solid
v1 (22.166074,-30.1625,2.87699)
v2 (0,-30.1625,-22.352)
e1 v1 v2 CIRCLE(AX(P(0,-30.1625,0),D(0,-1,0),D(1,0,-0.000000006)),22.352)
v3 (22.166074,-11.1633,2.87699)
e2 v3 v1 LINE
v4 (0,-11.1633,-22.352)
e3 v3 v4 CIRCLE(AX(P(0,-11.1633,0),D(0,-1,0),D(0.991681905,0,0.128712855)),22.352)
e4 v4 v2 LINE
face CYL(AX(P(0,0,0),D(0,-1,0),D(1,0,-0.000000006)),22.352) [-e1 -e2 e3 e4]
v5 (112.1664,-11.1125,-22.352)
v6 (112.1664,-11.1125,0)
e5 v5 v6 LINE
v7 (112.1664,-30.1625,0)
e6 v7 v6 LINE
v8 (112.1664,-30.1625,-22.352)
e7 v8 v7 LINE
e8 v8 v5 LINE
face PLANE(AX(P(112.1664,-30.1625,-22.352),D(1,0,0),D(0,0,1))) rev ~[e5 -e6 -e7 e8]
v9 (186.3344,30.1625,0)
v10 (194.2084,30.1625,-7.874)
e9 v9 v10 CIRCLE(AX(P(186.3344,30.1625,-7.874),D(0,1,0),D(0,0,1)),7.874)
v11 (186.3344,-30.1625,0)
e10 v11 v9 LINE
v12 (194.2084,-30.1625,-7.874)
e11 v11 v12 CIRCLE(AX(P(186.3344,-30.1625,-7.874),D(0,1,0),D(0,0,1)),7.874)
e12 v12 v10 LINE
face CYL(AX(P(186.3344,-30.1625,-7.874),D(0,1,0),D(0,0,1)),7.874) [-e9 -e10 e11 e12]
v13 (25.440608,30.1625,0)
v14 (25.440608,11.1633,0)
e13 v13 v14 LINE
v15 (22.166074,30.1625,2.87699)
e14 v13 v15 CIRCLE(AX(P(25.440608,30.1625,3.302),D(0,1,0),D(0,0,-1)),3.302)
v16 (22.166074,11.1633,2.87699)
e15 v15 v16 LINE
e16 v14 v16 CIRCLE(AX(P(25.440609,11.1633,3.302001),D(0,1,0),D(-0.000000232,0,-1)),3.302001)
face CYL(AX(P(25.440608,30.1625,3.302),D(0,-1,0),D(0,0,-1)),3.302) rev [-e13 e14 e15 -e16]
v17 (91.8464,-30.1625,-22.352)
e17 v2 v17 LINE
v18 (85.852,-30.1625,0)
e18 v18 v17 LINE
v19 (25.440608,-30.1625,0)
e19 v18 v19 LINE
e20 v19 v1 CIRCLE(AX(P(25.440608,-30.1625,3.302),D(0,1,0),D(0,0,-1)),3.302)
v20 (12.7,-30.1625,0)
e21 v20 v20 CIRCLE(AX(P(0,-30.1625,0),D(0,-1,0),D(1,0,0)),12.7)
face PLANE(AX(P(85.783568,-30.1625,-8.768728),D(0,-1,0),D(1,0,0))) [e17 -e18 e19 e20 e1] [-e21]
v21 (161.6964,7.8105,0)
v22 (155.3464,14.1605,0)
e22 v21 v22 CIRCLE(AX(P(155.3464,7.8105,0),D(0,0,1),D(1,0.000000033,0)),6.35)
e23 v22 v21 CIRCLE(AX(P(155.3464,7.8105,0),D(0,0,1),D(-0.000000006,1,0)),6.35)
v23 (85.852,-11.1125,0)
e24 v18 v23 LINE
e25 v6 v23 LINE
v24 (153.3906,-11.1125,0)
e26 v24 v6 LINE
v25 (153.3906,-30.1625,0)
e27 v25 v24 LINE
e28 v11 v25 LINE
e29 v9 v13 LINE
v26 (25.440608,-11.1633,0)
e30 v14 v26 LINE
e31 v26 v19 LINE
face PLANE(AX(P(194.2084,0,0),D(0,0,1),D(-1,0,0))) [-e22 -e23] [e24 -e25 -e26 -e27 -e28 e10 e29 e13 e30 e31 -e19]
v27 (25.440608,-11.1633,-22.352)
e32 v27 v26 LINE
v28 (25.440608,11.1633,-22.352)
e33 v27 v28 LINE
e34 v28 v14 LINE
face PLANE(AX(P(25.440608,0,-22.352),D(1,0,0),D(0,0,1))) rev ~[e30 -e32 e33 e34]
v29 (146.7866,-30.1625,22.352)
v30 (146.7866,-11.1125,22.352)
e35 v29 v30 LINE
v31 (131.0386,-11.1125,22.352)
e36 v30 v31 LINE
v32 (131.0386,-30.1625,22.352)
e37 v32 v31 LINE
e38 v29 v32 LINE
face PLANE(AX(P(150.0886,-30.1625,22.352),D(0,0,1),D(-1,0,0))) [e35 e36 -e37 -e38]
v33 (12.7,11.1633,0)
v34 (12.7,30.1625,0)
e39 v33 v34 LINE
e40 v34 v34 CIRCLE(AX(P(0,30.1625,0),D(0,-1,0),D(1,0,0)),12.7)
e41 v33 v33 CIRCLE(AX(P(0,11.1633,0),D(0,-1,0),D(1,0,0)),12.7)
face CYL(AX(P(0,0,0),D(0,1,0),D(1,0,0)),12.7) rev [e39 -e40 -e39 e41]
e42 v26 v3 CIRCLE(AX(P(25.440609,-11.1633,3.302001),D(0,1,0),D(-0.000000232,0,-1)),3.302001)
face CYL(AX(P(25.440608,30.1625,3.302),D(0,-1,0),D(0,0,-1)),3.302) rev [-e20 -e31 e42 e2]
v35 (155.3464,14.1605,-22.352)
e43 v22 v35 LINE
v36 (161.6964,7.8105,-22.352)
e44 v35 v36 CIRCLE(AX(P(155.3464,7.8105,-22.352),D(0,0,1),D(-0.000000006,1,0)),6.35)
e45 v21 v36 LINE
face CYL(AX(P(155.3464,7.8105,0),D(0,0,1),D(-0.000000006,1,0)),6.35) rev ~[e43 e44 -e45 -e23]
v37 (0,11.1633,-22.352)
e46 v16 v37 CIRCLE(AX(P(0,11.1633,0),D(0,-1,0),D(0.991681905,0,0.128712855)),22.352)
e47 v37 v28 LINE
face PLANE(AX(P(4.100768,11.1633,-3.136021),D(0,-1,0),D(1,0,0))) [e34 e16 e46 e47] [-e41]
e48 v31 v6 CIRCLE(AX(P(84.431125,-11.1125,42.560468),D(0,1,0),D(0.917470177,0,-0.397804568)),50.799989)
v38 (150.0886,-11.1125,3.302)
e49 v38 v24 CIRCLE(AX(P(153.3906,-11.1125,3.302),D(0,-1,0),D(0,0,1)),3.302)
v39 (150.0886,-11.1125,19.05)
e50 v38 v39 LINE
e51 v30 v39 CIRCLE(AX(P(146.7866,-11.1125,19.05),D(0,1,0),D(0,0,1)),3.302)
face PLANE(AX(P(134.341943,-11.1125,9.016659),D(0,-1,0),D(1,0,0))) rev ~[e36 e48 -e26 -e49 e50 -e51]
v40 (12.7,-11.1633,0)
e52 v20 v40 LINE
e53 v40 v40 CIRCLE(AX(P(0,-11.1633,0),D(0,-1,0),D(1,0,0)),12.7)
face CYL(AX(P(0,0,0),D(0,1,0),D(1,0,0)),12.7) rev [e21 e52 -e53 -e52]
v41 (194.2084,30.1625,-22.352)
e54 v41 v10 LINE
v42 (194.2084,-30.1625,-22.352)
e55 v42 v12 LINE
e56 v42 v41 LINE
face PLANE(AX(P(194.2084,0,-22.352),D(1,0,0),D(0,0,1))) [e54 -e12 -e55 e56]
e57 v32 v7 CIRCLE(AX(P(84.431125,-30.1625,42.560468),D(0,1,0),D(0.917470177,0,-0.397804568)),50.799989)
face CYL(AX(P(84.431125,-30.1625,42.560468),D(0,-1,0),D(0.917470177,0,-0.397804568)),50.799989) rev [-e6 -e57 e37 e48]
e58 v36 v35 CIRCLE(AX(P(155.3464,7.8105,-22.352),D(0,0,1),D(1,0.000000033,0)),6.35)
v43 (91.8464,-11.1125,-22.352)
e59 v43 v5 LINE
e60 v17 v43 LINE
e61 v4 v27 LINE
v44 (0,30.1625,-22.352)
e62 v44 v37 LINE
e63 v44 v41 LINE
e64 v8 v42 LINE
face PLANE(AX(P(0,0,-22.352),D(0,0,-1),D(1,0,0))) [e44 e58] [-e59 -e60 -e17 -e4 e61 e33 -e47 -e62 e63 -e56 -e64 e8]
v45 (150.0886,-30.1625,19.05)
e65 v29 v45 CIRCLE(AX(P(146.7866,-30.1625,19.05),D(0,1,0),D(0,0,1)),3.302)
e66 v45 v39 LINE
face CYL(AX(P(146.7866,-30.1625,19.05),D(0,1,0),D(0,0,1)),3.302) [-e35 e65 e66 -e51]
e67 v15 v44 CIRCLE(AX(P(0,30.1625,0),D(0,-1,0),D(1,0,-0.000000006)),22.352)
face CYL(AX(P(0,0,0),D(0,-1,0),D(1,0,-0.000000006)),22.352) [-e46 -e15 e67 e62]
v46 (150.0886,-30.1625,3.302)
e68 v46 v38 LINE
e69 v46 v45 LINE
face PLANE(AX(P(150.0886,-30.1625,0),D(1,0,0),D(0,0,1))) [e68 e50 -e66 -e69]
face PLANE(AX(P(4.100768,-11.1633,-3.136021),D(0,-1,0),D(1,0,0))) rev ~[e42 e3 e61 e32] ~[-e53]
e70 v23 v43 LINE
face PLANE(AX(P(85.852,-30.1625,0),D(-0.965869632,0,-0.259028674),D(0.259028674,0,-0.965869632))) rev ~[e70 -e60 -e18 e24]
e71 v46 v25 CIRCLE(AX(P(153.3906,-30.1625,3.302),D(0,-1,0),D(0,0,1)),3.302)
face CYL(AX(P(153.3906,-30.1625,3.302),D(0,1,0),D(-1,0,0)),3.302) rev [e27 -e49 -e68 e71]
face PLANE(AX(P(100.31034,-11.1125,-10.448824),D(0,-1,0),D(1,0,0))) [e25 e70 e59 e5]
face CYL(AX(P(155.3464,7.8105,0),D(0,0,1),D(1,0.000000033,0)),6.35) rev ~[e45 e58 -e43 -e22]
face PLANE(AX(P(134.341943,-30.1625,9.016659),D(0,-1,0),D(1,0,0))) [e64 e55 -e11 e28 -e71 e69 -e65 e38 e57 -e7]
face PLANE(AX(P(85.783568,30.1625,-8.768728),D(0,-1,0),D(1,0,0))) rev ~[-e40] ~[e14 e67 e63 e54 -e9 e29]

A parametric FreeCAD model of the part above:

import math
import FreeCAD as App
import Part
import Sketcher
Q = App.Units.Quantity


def edges_at(feature, points):
    """Names of the edges that pass closest to the given points."""
    edges = feature.Shape.Edges
    near = lambda p: min(range(len(edges)), key=lambda i: edges[i].distToShape(Part.Vertex(*p))[0])
    return sorted({f"Edge{near(p) + 1}" for p in points})

doc = App.newDocument("Part")
body = doc.addObject("PartDesign::Body", "Body")

# Sketch on XZ plane
sketch1 = body.newObject("Sketcher::SketchObject", "Sketch")
sketch1.AttachmentSupport = (doc.getObject("XZ_Plane"), [""])
sketch1.MapMode = "FlatFace"
sketch1.addGeometry([
    Part.LineSegment(App.Vector(194, 0, 0), App.Vector(22, 0, 0)),  # 0
    Part.ArcOfCircle(Part.Circle(App.Vector(0, 0, 0), App.Vector(0, 0, 1), 22), math.radians(0), math.radians(270)),  # 1
    Part.LineSegment(App.Vector(0, -22, 0), App.Vector(194, -22, 0)),  # 2
    Part.LineSegment(App.Vector(194, -22, 0), App.Vector(194, 0, 0)),  # 3
    Part.Circle(App.Vector(0, 0, 0), App.Vector(0, 0, 1), 13),  # 4
], False)
sketch1.addConstraint([
    Sketcher.Constraint("Coincident", 0, 2, 1, 1),
    Sketcher.Constraint("Tangent", 1, 2, 2, 1),
    Sketcher.Constraint("Coincident", 2, 2, 3, 1),
    Sketcher.Constraint("Coincident", 3, 2, 0, 1),
    Sketcher.Constraint("Horizontal", 0),
    Sketcher.Constraint("Horizontal", 2),
    Sketcher.Constraint("Vertical", 3),
    Sketcher.Constraint("Coincident", 1, 3, -1, 1),
    Sketcher.Constraint("Coincident", 4, 3, -1, 1),
    Sketcher.Constraint("PointOnObject", 0, 2, -1),
    Sketcher.Constraint("Diameter", 4, Q("1 in")),
    Sketcher.Constraint("Radius", 1, Q("0.88 in")),
    Sketcher.Constraint("DistanceX", 0, 2, 0, 1, Q("6.766 in")),
])
pad1 = body.newObject("PartDesign::Pad", "Pad")
pad1.Profile = sketch1
pad1.Length = Q("2.375 in")
pad1.Midplane = True
doc.recompute()

fillet = body.newObject("PartDesign::Fillet", "Fillet")
fillet.Base = (pad1, edges_at(pad1, [(22.352, 0, 0)]))
fillet.Radius = Q("0.13 in")
doc.recompute()

fillet2 = body.newObject("PartDesign::Fillet", "Fillet001")
fillet2.Base = (fillet, edges_at(fillet, [(194.208, 0, 0)]))
fillet2.Radius = Q("0.31 in")

# Sketch on XZ plane
sketch2 = body.newObject("Sketcher::SketchObject", "Sketch001")
sketch2.AttachmentSupport = (doc.getObject("XZ_Plane"), [""])
sketch2.MapMode = "FlatFace"
sketch2.AttachmentOffset = App.Placement(App.Vector(0, 0, 1.1875 * 25.4), App.Rotation())
sketch2.addGeometry([
    Part.LineSegment(App.Vector(112, 0, 0), App.Vector(86, 0, 0)),
    Part.LineSegment(App.Vector(86, 0, 0), App.Vector(92, -22, 0)),
    Part.LineSegment(App.Vector(92, -22, 0), App.Vector(112, -22, 0)),
    Part.LineSegment(App.Vector(112, -22, 0), App.Vector(112, 0, 0)),
], False)
sketch2.addConstraint([
    Sketcher.Constraint("Coincident", 0, 2, 1, 1),
    Sketcher.Constraint("Coincident", 1, 2, 2, 1),
    Sketcher.Constraint("Coincident", 2, 2, 3, 1),
    Sketcher.Constraint("Coincident", 3, 2, 0, 1),
    Sketcher.Constraint("Horizontal", 0),
    Sketcher.Constraint("Horizontal", 2),
    Sketcher.Constraint("Vertical", 3),
    Sketcher.Constraint("PointOnObject", 0, 2, -1),
    Sketcher.Constraint("DistanceX", 2, 1, 2, 2, Q("0.8 in")),
    Sketcher.Constraint("DistanceY", 3, 1, 3, 2, Q("0.88 in")),
    Sketcher.Constraint("DistanceX", 0, 2, 0, 1, Q("1.036 in")),
    Sketcher.Constraint("DistanceX", -1, 1, 0, 2, Q("3.38 in")),
])
pocket1 = body.newObject("PartDesign::Pocket", "Pocket")
pocket1.Profile = sketch2
pocket1.Length = Q("0.75 in")

# Sketch on XZ plane
sketch3 = body.newObject("Sketcher::SketchObject", "Sketch002")
sketch3.AttachmentSupport = (doc.getObject("XZ_Plane"), [""])
sketch3.MapMode = "FlatFace"
sketch3.AttachmentOffset = App.Placement(App.Vector(0, 0, 1.1875 * 25.4), App.Rotation())
sketch3.addGeometry([
    Part.ArcOfCircle(Part.Circle(App.Vector(84, 43, 0), App.Vector(0, 0, 1), 51), math.radians(-57), math.radians(-23)),
    Part.LineSegment(App.Vector(112, 0, 0), App.Vector(150, 0, 0)),
    Part.LineSegment(App.Vector(150, 0, 0), App.Vector(150, 22, 0)),
    Part.LineSegment(App.Vector(150, 22, 0), App.Vector(131, 22, 0)),
], False)
sketch3.addConstraint([
    Sketcher.Constraint("Coincident", 0, 1, 1, 1),
    Sketcher.Constraint("Coincident", 1, 2, 2, 1),
    Sketcher.Constraint("Coincident", 2, 2, 3, 1),
    Sketcher.Constraint("Coincident", 3, 2, 0, 2),
    Sketcher.Constraint("Horizontal", 1),
    Sketcher.Constraint("Vertical", 2),
    Sketcher.Constraint("Horizontal", 3),
    Sketcher.Constraint("PointOnObject", 0, 1, -1),
    Sketcher.Constraint("DistanceX", 3, 2, 3, 1, Q("0.75 in")),
    Sketcher.Constraint("DistanceY", 2, 1, 2, 2, Q("0.88 in")),
    Sketcher.Constraint("DistanceX", 1, 1, 1, 2, Q("1.493 in")),
    Sketcher.Constraint("DistanceX", -1, 1, 0, 1, Q("4.416 in")),
    Sketcher.Constraint("Radius", 0, 50.799989),
])
pad2 = body.newObject("PartDesign::Pad", "Pad001")
pad2.Profile = sketch3
pad2.Length = Q("0.75 in")
pad2.Reversed = True
doc.recompute()

fillet3 = body.newObject("PartDesign::Fillet", "Fillet002")
fillet3.Base = (pad2, edges_at(pad2, [(150.089, -20.637, 0), (150.089, -20.637, 22.352)]))
fillet3.Radius = Q("0.13 in")

# Sketch on XZ plane
sketch4 = body.newObject("Sketcher::SketchObject", "Sketch003")
sketch4.AttachmentSupport = (doc.getObject("XZ_Plane"), [""])
sketch4.MapMode = "FlatFace"
sketch4.addGeometry([
    Part.ArcOfCircle(Part.Circle(App.Vector(25.4, 3.3, 0), App.Vector(0, 0, 1), 3.3), math.radians(-173), math.radians(-90)),  # 0
    Part.ArcOfCircle(Part.Circle(App.Vector(0, 0, 0), App.Vector(0, 0, 1), 22.4), math.radians(7), math.radians(270)),  # 1
    Part.LineSegment(App.Vector(0, -22.4, 0), App.Vector(25.4, -22.4, 0)),  # 2
    Part.LineSegment(App.Vector(25.4, -22.4, 0), App.Vector(25.4, 0, 0)),  # 3
    Part.Circle(App.Vector(0, 0, 0), App.Vector(0, 0, 1), 12.7),  # 4
], False)
sketch4.addConstraint([
    Sketcher.Constraint("Tangent", 0, 1, 1, 1),
    Sketcher.Constraint("Tangent", 1, 2, 2, 1),
    Sketcher.Constraint("Coincident", 2, 2, 3, 1),
    Sketcher.Constraint("Coincident", 3, 2, 0, 2),
    Sketcher.Constraint("Horizontal", 2),
    Sketcher.Constraint("Vertical", 3),
    Sketcher.Constraint("Coincident", 1, 3, -1, 1),
    Sketcher.Constraint("Coincident", 4, 3, -1, 1),
    Sketcher.Constraint("PointOnObject", 3, 2, -1),
    Sketcher.Constraint("Vertical", 0, 3, 2, 2),
    Sketcher.Constraint("Diameter", 4, Q("1 in")),
    Sketcher.Constraint("Radius", 0, Q("0.1300001 in")),
    Sketcher.Constraint("Radius", 1, Q("0.88 in")),
])
pocket2 = body.newObject("PartDesign::Pocket", "Pocket001")
pocket2.Profile = sketch4
pocket2.Length = Q("0.879 in")
pocket2.Midplane = True

# Sketch on XY plane
sketch5 = body.newObject("Sketcher::SketchObject", "Sketch004")
sketch5.AttachmentSupport = (doc.getObject("XY_Plane"), [""])
sketch5.MapMode = "FlatFace"
sketch5.addGeometry([
    Part.ArcOfCircle(Part.Circle(App.Vector(155, 8, 0), App.Vector(0, 0, 1), 6), math.radians(0), math.radians(90)),
    Part.ArcOfCircle(Part.Circle(App.Vector(155, 8, 0), App.Vector(0, 0, 1), 6), math.radians(90), math.radians(360)),
], False)
sketch5.addConstraint([
    Sketcher.Constraint("Tangent", 0, 1, 1, 2),
    Sketcher.Constraint("Coincident", 1, 1, 0, 2),
    Sketcher.Constraint("Horizontal", 1, 3, 0, 1),
    Sketcher.Constraint("Vertical", 0, 3, 1, 1),
    Sketcher.Constraint("Radius", 0, Q("0.25 in")),
    Sketcher.Constraint("DistanceX", -1, 1, 0, 3, Q("6.116 in")),
    Sketcher.Constraint("DistanceY", -1, 1, 0, 3, Q("0.3075 in")),
])
pocket3 = body.newObject("PartDesign::Pocket", "Pocket002")
pocket3.Profile = sketch5
pocket3.Length = Q("0.88 in")

doc.recompute()
